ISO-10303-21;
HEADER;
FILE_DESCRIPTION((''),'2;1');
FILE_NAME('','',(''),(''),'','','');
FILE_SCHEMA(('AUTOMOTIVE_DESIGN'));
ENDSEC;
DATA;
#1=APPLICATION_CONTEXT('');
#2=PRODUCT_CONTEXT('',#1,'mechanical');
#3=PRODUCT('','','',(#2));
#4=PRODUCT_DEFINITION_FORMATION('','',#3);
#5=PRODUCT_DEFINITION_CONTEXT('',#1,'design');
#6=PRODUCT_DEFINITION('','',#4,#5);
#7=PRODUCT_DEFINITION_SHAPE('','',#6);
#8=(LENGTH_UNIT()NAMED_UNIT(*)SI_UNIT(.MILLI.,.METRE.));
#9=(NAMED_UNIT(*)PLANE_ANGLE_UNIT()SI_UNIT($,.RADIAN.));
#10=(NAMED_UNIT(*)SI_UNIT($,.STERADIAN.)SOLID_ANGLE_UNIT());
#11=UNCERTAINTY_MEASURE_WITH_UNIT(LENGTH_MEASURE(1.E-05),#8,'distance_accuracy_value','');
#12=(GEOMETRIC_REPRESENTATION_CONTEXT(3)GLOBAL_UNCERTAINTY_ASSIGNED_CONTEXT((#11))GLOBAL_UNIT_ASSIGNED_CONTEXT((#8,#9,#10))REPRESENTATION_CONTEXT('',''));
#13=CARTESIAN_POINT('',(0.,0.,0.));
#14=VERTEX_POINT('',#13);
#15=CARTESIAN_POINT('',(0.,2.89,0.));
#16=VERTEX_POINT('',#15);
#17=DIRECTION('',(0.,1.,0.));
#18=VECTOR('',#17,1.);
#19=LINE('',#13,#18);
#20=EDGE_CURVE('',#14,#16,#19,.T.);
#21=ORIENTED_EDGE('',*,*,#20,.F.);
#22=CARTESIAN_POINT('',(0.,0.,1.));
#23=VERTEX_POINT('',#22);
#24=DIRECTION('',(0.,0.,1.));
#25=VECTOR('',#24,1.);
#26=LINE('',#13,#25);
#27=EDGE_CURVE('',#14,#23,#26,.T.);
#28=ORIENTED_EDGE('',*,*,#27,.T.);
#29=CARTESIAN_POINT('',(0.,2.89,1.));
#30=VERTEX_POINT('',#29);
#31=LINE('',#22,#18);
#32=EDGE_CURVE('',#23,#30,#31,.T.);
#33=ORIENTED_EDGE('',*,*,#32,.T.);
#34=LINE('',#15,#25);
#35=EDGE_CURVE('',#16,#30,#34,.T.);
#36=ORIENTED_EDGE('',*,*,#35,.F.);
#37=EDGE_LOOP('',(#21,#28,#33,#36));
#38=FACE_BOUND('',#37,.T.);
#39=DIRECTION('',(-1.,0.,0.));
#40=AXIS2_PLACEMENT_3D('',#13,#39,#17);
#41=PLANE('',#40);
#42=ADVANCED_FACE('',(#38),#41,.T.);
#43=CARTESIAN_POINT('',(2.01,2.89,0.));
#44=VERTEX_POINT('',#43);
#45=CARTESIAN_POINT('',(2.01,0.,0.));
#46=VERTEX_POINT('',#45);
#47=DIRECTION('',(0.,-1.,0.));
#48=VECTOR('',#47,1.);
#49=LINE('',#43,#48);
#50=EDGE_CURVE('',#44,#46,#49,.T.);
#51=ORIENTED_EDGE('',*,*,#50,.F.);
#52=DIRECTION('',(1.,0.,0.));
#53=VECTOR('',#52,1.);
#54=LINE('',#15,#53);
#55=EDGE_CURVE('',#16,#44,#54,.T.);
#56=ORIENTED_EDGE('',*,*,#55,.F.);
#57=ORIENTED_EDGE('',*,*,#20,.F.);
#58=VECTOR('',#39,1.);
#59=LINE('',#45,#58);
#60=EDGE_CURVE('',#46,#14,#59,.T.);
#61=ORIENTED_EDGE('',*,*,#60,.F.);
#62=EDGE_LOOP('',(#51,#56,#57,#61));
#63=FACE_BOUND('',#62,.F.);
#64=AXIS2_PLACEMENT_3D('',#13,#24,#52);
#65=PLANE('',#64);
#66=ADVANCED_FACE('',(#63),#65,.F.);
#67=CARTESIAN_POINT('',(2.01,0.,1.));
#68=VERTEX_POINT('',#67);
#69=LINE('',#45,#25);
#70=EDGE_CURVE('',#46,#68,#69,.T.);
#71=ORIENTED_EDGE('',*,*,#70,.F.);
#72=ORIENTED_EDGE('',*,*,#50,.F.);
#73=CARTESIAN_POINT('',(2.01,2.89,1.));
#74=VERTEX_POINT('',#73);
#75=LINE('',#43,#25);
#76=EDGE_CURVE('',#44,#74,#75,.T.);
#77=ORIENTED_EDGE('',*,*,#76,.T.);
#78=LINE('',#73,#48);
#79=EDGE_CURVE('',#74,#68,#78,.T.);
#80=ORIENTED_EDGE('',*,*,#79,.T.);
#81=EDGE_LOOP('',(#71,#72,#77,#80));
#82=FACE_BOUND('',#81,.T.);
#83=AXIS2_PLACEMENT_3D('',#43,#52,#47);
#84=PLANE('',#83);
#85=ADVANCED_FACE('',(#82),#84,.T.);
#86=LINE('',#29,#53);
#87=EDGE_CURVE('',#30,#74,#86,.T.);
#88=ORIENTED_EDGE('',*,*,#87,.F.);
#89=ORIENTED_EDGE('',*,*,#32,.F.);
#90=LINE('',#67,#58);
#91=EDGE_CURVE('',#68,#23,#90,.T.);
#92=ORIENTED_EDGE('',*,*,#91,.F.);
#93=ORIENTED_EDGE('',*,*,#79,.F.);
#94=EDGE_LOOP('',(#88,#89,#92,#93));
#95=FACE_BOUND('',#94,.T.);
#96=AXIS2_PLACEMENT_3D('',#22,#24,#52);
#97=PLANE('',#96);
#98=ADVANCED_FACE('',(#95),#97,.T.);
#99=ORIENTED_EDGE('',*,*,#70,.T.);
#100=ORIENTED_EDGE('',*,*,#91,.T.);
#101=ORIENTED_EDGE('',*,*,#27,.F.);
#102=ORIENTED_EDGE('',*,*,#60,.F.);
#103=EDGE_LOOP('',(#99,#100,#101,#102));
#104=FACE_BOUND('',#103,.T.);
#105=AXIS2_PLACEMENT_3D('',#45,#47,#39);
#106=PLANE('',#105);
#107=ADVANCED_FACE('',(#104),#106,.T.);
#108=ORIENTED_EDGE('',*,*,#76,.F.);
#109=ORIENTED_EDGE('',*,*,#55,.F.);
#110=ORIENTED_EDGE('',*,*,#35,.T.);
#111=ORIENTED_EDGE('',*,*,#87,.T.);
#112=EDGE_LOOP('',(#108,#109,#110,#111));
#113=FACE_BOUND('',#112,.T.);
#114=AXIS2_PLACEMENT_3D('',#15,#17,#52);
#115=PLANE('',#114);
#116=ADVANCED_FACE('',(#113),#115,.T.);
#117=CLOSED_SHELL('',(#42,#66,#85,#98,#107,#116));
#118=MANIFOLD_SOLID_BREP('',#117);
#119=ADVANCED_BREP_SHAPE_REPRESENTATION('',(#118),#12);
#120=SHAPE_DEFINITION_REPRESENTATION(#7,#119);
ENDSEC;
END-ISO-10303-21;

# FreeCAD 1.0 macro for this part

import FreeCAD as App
import Part
import Sketcher

V = App.Vector

doc = App.newDocument("Part")
params = doc.addObject("Spreadsheet::Sheet", "Params")
for row, (alias, value) in enumerate([
    ("sketch1_width", "2.01 mm"),
    ("sketch1_height", "2.89 mm"),
    ("pad1_length", "1 mm"),
], start=1):
    params.set(f"A{row}", alias)
    params.set(f"B{row}", "=" + value)
    params.setAlias(f"B{row}", alias)

body = doc.addObject("PartDesign::Body", "Body")

sketch1 = body.newObject("Sketcher::SketchObject", "Sketch")
sketch1.AttachmentSupport = (doc.getObject("XY_Plane"), [""])
sketch1.MapMode = "FlatFace"
sketch1.addGeometry([
    Part.LineSegment(V(2, 2.9, 0), V(0, 2.9, 0)),
    Part.LineSegment(V(0, 2.9, 0), V(0, 0, 0)),
    Part.LineSegment(V(0, 0, 0), V(2, 0, 0)),
    Part.LineSegment(V(2, 0, 0), V(2, 2.9, 0)),
], False)
sketch1.addConstraint([
    Sketcher.Constraint("Coincident", 0, 2, 1, 1),
    Sketcher.Constraint("Coincident", 1, 2, 2, 1),
    Sketcher.Constraint("Coincident", 2, 2, 3, 1),
    Sketcher.Constraint("Coincident", 3, 2, 0, 1),
    Sketcher.Constraint("Horizontal", 0),
    Sketcher.Constraint("Vertical", 1),
    Sketcher.Constraint("Horizontal", 2),
    Sketcher.Constraint("Vertical", 3),
    Sketcher.Constraint("Coincident", 1, 2, -1, 1),
    Sketcher.Constraint("DistanceX", 0, 2, 0, 1, 2.01),
    Sketcher.Constraint("DistanceY", 1, 2, 1, 1, 2.89),
])
sketch1.setExpression("Constraints[9]", "Params.sketch1_width")
sketch1.setExpression("Constraints[10]", "Params.sketch1_height")
pad1 = body.newObject("PartDesign::Pad", "Pad")
pad1.Profile = sketch1
pad1.setExpression("Length", "Params.pad1_length")

doc.recompute()
